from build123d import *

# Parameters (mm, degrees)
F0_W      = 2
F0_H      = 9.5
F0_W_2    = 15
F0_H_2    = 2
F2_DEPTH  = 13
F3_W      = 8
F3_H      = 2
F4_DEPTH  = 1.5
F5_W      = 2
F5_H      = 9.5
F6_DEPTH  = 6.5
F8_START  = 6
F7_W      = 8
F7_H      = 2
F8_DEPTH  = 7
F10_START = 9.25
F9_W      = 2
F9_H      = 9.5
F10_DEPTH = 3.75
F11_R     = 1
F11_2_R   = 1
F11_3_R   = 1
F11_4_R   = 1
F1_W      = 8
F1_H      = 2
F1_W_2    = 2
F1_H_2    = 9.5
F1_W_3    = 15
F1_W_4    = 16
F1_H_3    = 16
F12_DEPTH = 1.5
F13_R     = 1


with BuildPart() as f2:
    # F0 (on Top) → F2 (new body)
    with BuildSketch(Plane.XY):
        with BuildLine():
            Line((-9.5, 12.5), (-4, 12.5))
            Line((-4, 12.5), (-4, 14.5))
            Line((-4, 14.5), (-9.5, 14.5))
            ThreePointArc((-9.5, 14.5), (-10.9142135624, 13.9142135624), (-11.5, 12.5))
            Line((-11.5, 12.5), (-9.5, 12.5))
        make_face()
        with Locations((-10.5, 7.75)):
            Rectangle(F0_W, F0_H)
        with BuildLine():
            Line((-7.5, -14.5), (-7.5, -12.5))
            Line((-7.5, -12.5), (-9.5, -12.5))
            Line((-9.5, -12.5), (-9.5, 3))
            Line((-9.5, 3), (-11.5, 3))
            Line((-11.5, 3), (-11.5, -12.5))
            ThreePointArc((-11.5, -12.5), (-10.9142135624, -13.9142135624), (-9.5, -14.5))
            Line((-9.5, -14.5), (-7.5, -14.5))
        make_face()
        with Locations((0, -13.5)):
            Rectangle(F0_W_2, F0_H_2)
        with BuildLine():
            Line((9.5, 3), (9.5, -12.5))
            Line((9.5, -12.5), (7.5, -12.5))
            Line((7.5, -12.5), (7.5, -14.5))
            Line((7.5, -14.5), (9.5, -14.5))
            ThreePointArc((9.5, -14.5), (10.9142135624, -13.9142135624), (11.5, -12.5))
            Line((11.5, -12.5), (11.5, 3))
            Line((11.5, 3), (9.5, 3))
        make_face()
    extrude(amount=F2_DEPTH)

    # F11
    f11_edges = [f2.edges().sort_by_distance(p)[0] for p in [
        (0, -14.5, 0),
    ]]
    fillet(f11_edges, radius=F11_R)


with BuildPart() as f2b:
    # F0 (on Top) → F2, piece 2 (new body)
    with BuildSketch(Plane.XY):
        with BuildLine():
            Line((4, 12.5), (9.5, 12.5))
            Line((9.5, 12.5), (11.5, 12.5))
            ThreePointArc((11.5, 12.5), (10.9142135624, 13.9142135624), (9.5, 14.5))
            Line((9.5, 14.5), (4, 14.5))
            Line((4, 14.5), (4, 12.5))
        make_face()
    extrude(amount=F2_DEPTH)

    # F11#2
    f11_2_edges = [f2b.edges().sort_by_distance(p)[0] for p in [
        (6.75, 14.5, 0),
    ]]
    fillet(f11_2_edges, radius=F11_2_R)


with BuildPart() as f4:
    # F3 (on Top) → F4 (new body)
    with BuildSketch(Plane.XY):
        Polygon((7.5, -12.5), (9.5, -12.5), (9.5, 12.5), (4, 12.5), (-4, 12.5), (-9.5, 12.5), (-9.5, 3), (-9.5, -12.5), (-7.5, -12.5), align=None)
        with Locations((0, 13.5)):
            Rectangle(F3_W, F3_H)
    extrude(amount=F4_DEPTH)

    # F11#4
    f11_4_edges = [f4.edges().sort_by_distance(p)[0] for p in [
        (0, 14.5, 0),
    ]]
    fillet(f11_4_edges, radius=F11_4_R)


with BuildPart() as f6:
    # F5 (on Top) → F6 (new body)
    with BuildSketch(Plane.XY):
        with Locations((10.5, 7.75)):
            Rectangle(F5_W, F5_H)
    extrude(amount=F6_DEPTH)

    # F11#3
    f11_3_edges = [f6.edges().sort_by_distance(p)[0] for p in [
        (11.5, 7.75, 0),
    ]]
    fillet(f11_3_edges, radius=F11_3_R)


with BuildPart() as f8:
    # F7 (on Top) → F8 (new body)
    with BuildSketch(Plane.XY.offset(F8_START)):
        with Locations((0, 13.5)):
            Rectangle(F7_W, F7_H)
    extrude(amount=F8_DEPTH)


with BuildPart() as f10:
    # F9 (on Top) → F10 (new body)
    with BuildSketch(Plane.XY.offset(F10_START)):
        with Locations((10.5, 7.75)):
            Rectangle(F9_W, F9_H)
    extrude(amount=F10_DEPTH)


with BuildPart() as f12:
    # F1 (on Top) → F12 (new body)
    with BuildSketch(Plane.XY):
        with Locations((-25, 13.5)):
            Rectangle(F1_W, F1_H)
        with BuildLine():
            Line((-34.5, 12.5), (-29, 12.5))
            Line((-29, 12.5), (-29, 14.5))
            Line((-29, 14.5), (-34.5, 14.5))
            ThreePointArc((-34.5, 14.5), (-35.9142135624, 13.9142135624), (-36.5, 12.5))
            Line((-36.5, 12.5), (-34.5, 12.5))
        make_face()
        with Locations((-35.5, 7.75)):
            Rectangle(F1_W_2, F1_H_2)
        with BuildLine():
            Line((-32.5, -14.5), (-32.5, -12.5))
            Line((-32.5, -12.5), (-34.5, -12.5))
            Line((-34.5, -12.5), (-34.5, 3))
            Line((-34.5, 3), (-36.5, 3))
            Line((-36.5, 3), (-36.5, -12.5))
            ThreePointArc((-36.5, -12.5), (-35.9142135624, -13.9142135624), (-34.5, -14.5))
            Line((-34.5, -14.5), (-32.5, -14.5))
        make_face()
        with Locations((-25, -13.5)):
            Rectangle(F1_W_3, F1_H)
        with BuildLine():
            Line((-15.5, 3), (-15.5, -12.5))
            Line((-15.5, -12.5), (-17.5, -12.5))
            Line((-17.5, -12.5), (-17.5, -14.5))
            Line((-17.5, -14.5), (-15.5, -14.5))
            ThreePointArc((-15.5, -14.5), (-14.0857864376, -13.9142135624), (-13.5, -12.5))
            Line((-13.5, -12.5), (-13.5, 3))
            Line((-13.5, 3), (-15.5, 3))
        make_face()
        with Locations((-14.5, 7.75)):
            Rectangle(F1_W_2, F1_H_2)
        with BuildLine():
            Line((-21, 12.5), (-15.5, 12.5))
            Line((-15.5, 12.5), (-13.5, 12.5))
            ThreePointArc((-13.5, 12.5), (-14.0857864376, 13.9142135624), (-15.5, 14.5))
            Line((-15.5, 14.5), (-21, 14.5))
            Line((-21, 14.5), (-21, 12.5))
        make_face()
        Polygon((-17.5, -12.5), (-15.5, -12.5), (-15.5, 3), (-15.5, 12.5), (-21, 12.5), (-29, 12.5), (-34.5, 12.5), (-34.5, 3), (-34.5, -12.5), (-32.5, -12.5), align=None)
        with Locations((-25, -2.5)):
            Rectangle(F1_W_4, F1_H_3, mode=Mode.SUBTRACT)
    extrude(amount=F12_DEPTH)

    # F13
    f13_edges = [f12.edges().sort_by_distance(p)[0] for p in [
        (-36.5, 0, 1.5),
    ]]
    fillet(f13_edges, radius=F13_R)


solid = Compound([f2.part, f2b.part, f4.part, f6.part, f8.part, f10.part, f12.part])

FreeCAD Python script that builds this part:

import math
import FreeCAD as App
import Part
import Sketcher
Q = App.Units.Quantity


def edges_at(feature, points):
    """Names of the edges that pass closest to the given points."""
    edges = feature.Shape.Edges
    near = lambda p: min(range(len(edges)), key=lambda i: edges[i].distToShape(Part.Vertex(*p))[0])
    return sorted({f"Edge{near(p) + 1}" for p in points})


def add_polygon(sketch, points):
    """Adds a closed chain of lines whose ends are joined by coincident constraints."""
    first, n = sketch.GeometryCount, len(points)
    for a, b in zip(points, points[1:] + points[:1]):
        sketch.addGeometry(Part.LineSegment(App.Vector(*a, 0), App.Vector(*b, 0)), False)
    for i in range(n):
        sketch.addConstraint(Sketcher.Constraint("Coincident", first + i, 2, first + (i + 1) % n, 1))

doc = App.newDocument("Part")
body = doc.addObject("PartDesign::Body", "Body")

# Sketch on XY plane
sketch1 = body.newObject("Sketcher::SketchObject", "Sketch")
sketch1.AttachmentSupport = (doc.getObject("XY_Plane"), [""])
sketch1.MapMode = "FlatFace"
sketch1.addGeometry([
    Part.LineSegment(App.Vector(-4, 12.5, 0), App.Vector(-4, 14.5, 0)),  # 0
    Part.LineSegment(App.Vector(-4, 14.5, 0), App.Vector(-9.5, 14.5, 0)),  # 1
    Part.ArcOfCircle(Part.Circle(App.Vector(-9.5, 12.5, 0), App.Vector(0, 0, 1), 2), math.radians(90), math.radians(180)),  # 2
    Part.LineSegment(App.Vector(-11.5, 12.5, 0), App.Vector(-11.5, -12.5, 0)),  # 3
    Part.ArcOfCircle(Part.Circle(App.Vector(-9.5, -12.5, 0), App.Vector(0, 0, 1), 2), math.radians(180), math.radians(270)),  # 4
    Part.LineSegment(App.Vector(-9.5, -14.5, 0), App.Vector(9.5, -14.5, 0)),  # 5
    Part.ArcOfCircle(Part.Circle(App.Vector(9.5, -12.5, 0), App.Vector(0, 0, 1), 2), math.radians(-90), math.radians(0)),  # 6
    Part.LineSegment(App.Vector(11.5, -12.5, 0), App.Vector(11.5, 3, 0)),  # 7
    Part.LineSegment(App.Vector(11.5, 3, 0), App.Vector(9.5, 3, 0)),  # 8
    Part.LineSegment(App.Vector(9.5, 3, 0), App.Vector(9.5, -12.5, 0)),  # 9
    Part.LineSegment(App.Vector(9.5, -12.5, 0), App.Vector(-9.5, -12.5, 0)),  # 10
    Part.LineSegment(App.Vector(-9.5, -12.5, 0), App.Vector(-9.5, 12.5, 0)),  # 11
    Part.LineSegment(App.Vector(-9.5, 12.5, 0), App.Vector(-4, 12.5, 0)),  # 12
], False)
sketch1.addConstraint([
    Sketcher.Constraint("Coincident", 0, 2, 1, 1),
    Sketcher.Constraint("Tangent", 1, 2, 2, 1),
    Sketcher.Constraint("Tangent", 2, 2, 3, 1),
    Sketcher.Constraint("Tangent", 3, 2, 4, 1),
    Sketcher.Constraint("Tangent", 4, 2, 5, 1),
    Sketcher.Constraint("Tangent", 5, 2, 6, 1),
    Sketcher.Constraint("Tangent", 6, 2, 7, 1),
    Sketcher.Constraint("Coincident", 7, 2, 8, 1),
    Sketcher.Constraint("Coincident", 8, 2, 9, 1),
    Sketcher.Constraint("Coincident", 9, 2, 10, 1),
    Sketcher.Constraint("Coincident", 10, 2, 11, 1),
    Sketcher.Constraint("Coincident", 11, 2, 12, 1),
    Sketcher.Constraint("Coincident", 12, 2, 0, 1),
    Sketcher.Constraint("Vertical", 0),
    Sketcher.Constraint("Horizontal", 1),
    Sketcher.Constraint("Vertical", 3),
    Sketcher.Constraint("Horizontal", 5),
    Sketcher.Constraint("Vertical", 7),
    Sketcher.Constraint("Horizontal", 8),
    Sketcher.Constraint("Vertical", 9),
    Sketcher.Constraint("Horizontal", 10),
    Sketcher.Constraint("Vertical", 11),
    Sketcher.Constraint("Horizontal", 12),
    Sketcher.Constraint("Coincident", 9, 2, 6, 3),
    Sketcher.Constraint("Coincident", 10, 2, 4, 3),
    Sketcher.Constraint("Coincident", 11, 2, 2, 3),
    Sketcher.Constraint("Symmetric", 2, 3, 6, 3, -1, 1),
    Sketcher.Constraint("Radius", 2, Q("2 mm")),
    Sketcher.Constraint("DistanceX", 5, 1, 5, 2, Q("19 mm")),
    Sketcher.Constraint("DistanceY", 3, 2, 3, 1, Q("25 mm")),
    Sketcher.Constraint("DistanceX", 1, 2, 1, 1, Q("5.5 mm")),
    Sketcher.Constraint("DistanceY", 7, 1, 7, 2, Q("15.5 mm")),
])
pad1 = body.newObject("PartDesign::Pad", "Pad")
pad1.Profile = sketch1
pad1.Length = 13
doc.recompute()

fillet = body.newObject("PartDesign::Fillet", "Fillet")
fillet.Base = (pad1, edges_at(pad1, [(0, -14.5, 0)]))
fillet.Radius = 1
body2 = doc.addObject("PartDesign::Body", "Body001")

# Sketch on XY plane
sketch2 = body2.newObject("Sketcher::SketchObject", "Sketch001")
sketch2.AttachmentSupport = (doc.getObject("XY_Plane001"), [""])
sketch2.MapMode = "FlatFace"
sketch2.addGeometry([
    Part.LineSegment(App.Vector(4, 12.5, 0), App.Vector(11.5, 12.5, 0)),
    Part.ArcOfCircle(Part.Circle(App.Vector(9.5, 12.5, 0), App.Vector(0, 0, 1), 2), math.radians(0), math.radians(90)),
    Part.LineSegment(App.Vector(9.5, 14.5, 0), App.Vector(4, 14.5, 0)),
    Part.LineSegment(App.Vector(4, 14.5, 0), App.Vector(4, 12.5, 0)),
], False)
sketch2.addConstraint([
    Sketcher.Constraint("Coincident", 0, 2, 1, 1),
    Sketcher.Constraint("Tangent", 1, 2, 2, 1),
    Sketcher.Constraint("Coincident", 2, 2, 3, 1),
    Sketcher.Constraint("Coincident", 3, 2, 0, 1),
    Sketcher.Constraint("Horizontal", 0),
    Sketcher.Constraint("Horizontal", 2),
    Sketcher.Constraint("Vertical", 3),
    Sketcher.Constraint("Horizontal", 1, 3, 0, 2),
    Sketcher.Constraint("Radius", 1, Q("2 mm")),
    Sketcher.Constraint("DistanceX", 0, 1, 0, 2, Q("7.5 mm")),
    Sketcher.Constraint("DistanceX", -1, 1, 2, 2, Q("4 mm")),
    Sketcher.Constraint("DistanceY", -1, 1, 1, 3, Q("12.5 mm")),
])
pad2 = body2.newObject("PartDesign::Pad", "Pad001")
pad2.Profile = sketch2
pad2.Length = 13
doc.recompute()

fillet2 = body2.newObject("PartDesign::Fillet", "Fillet001")
fillet2.Base = (pad2, edges_at(pad2, [(6.75, 14.5, 0)]))
fillet2.Radius = 1
body3 = doc.addObject("PartDesign::Body", "Body002")

# Sketch on XY plane
sketch3 = body3.newObject("Sketcher::SketchObject", "Sketch002")
sketch3.AttachmentSupport = (doc.getObject("XY_Plane002"), [""])
sketch3.MapMode = "FlatFace"
add_polygon(sketch3, [(9.5, -12.5), (9.5, 12.5), (4, 12.5), (4, 14.5), (-4, 14.5), (-4, 12.5), (-9.5, 12.5), (-9.5, -12.5)])  # lines 0-7
sketch3.addConstraint([
    Sketcher.Constraint("Vertical", 0),
    Sketcher.Constraint("Horizontal", 1),
    Sketcher.Constraint("Vertical", 2),
    Sketcher.Constraint("Horizontal", 3),
    Sketcher.Constraint("Vertical", 4),
    Sketcher.Constraint("Horizontal", 5),
    Sketcher.Constraint("Vertical", 6),
    Sketcher.Constraint("Horizontal", 7),
    Sketcher.Constraint("Symmetric", 0, 2, 6, 2, -1, 1),
    Sketcher.Constraint("Symmetric", 1, 2, 4, 2, -2),
    Sketcher.Constraint("DistanceX", 3, 2, 3, 1, Q("8 mm")),
    Sketcher.Constraint("DistanceX", 7, 1, 7, 2, Q("19 mm")),
    Sketcher.Constraint("DistanceY", 0, 1, 0, 2, Q("25 mm")),
    Sketcher.Constraint("DistanceY", 2, 1, 2, 2, Q("2 mm")),
])
pad3 = body3.newObject("PartDesign::Pad", "Pad002")
pad3.Profile = sketch3
pad3.Length = 1.5
doc.recompute()

fillet3 = body3.newObject("PartDesign::Fillet", "Fillet002")
fillet3.Base = (pad3, edges_at(pad3, [(0, 14.5, 0)]))
fillet3.Radius = 1
body4 = doc.addObject("PartDesign::Body", "Body003")

# Sketch on XY plane
sketch4 = body4.newObject("Sketcher::SketchObject", "Sketch003")
sketch4.AttachmentSupport = (doc.getObject("XY_Plane003"), [""])
sketch4.MapMode = "FlatFace"
add_polygon(sketch4, [(9.5, 12.5), (9.5, 3), (11.5, 3), (11.5, 12.5)])  # lines 0-3
sketch4.addConstraint([
    Sketcher.Constraint("Vertical", 0),
    Sketcher.Constraint("Horizontal", 1),
    Sketcher.Constraint("Vertical", 2),
    Sketcher.Constraint("Horizontal", 3),
    Sketcher.Constraint("DistanceX", 1, 1, 1, 2, Q("2 mm")),
    Sketcher.Constraint("DistanceY", 0, 2, 0, 1, Q("9.5 mm")),
    Sketcher.Constraint("DistanceY", -1, 1, 0, 2, Q("3 mm")),
    Sketcher.Constraint("DistanceX", -1, 1, 0, 2, Q("9.5 mm")),
])
pad4 = body4.newObject("PartDesign::Pad", "Pad003")
pad4.Profile = sketch4
pad4.Length = 6.5
doc.recompute()

fillet4 = body4.newObject("PartDesign::Fillet", "Fillet003")
fillet4.Base = (pad4, edges_at(pad4, [(11.5, 7.75, 0)]))
fillet4.Radius = 1
body5 = doc.addObject("PartDesign::Body", "Body004")

# Sketch on XY plane
sketch5 = body5.newObject("Sketcher::SketchObject", "Sketch004")
sketch5.AttachmentSupport = (doc.getObject("XY_Plane004"), [""])
sketch5.MapMode = "FlatFace"
sketch5.AttachmentOffset = App.Placement(App.Vector(0, 0, 6), App.Rotation())
add_polygon(sketch5, [(-4, 14.5), (-4, 12.5), (4, 12.5), (4, 14.5)])  # lines 0-3
sketch5.addConstraint([
    Sketcher.Constraint("Vertical", 0),
    Sketcher.Constraint("Horizontal", 1),
    Sketcher.Constraint("Vertical", 2),
    Sketcher.Constraint("Horizontal", 3),
    Sketcher.Constraint("DistanceX", 1, 1, 1, 2, Q("8 mm")),
    Sketcher.Constraint("DistanceY", 0, 2, 0, 1, Q("2 mm")),
    Sketcher.Constraint("DistanceX", 0, 2, -1, 1, Q("4 mm")),
    Sketcher.Constraint("DistanceY", -1, 1, 0, 2, Q("12.5 mm")),
])
pad5 = body5.newObject("PartDesign::Pad", "Pad004")
pad5.Profile = sketch5
pad5.Length = 7
body6 = doc.addObject("PartDesign::Body", "Body005")

# Sketch on XY plane
sketch6 = body6.newObject("Sketcher::SketchObject", "Sketch005")
sketch6.AttachmentSupport = (doc.getObject("XY_Plane005"), [""])
sketch6.MapMode = "FlatFace"
sketch6.AttachmentOffset = App.Placement(App.Vector(0, 0, 9.25), App.Rotation())
add_polygon(sketch6, [(9.5, 12.5), (9.5, 3), (11.5, 3), (11.5, 12.5)])  # lines 0-3
sketch6.addConstraint([
    Sketcher.Constraint("Vertical", 0),
    Sketcher.Constraint("Horizontal", 1),
    Sketcher.Constraint("Vertical", 2),
    Sketcher.Constraint("Horizontal", 3),
    Sketcher.Constraint("DistanceX", 1, 1, 1, 2, Q("2 mm")),
    Sketcher.Constraint("DistanceY", 0, 2, 0, 1, Q("9.5 mm")),
    Sketcher.Constraint("DistanceY", -1, 1, 0, 2, Q("3 mm")),
    Sketcher.Constraint("DistanceX", -1, 1, 0, 2, Q("9.5 mm")),
])
pad6 = body6.newObject("PartDesign::Pad", "Pad005")
pad6.Profile = sketch6
pad6.Length = 3.75
body7 = doc.addObject("PartDesign::Body", "Body006")

# Sketch on XY plane
sketch7 = body7.newObject("Sketcher::SketchObject", "Sketch006")
sketch7.AttachmentSupport = (doc.getObject("XY_Plane006"), [""])
sketch7.MapMode = "FlatFace"
sketch7.addGeometry(Part.ArcOfCircle(Part.Circle(App.Vector(-34.5, 12.5, 0), App.Vector(0, 0, 1), 2), math.radians(90), math.radians(180)), False)  # 0
sketch7.addGeometry(Part.LineSegment(App.Vector(-36.5, 12.5, 0), App.Vector(-36.5, -12.5, 0)), False)  # 1
sketch7.addGeometry(Part.ArcOfCircle(Part.Circle(App.Vector(-34.5, -12.5, 0), App.Vector(0, 0, 1), 2), math.radians(180), math.radians(270)), False)  # 2
sketch7.addGeometry(Part.LineSegment(App.Vector(-34.5, -14.5, 0), App.Vector(-15.5, -14.5, 0)), False)  # 3
sketch7.addGeometry(Part.ArcOfCircle(Part.Circle(App.Vector(-15.5, -12.5, 0), App.Vector(0, 0, 1), 2), math.radians(-90), math.radians(0)), False)  # 4
sketch7.addGeometry(Part.LineSegment(App.Vector(-13.5, -12.5, 0), App.Vector(-13.5, 12.5, 0)), False)  # 5
sketch7.addGeometry(Part.ArcOfCircle(Part.Circle(App.Vector(-15.5, 12.5, 0), App.Vector(0, 0, 1), 2), math.radians(0), math.radians(90)), False)  # 6
sketch7.addGeometry(Part.LineSegment(App.Vector(-15.5, 14.5, 0), App.Vector(-34.5, 14.5, 0)), False)  # 7
add_polygon(sketch7, [(-17, -10.5), (-33, -10.5), (-33, 5.5), (-17, 5.5)])  # lines 8-11
sketch7.addConstraint([
    Sketcher.Constraint("Tangent", 0, 2, 1, 1),
    Sketcher.Constraint("Tangent", 1, 2, 2, 1),
    Sketcher.Constraint("Tangent", 2, 2, 3, 1),
    Sketcher.Constraint("Tangent", 3, 2, 4, 1),
    Sketcher.Constraint("Tangent", 4, 2, 5, 1),
    Sketcher.Constraint("Tangent", 5, 2, 6, 1),
    Sketcher.Constraint("Tangent", 6, 2, 7, 1),
    Sketcher.Constraint("Tangent", 7, 2, 0, 1),
    Sketcher.Constraint("Vertical", 1),
    Sketcher.Constraint("Horizontal", 3),
    Sketcher.Constraint("Vertical", 5),
    Sketcher.Constraint("Horizontal", 7),
    Sketcher.Constraint("Horizontal", 8),
    Sketcher.Constraint("Vertical", 9),
    Sketcher.Constraint("Horizontal", 10),
    Sketcher.Constraint("Vertical", 11),
    Sketcher.Constraint("Equal", 0, 2),
    Sketcher.Constraint("Equal", 2, 4),
    Sketcher.Constraint("Equal", 4, 6),
    Sketcher.Constraint("Equal", 10, 9),
    Sketcher.Constraint("Radius", 0, Q("2 mm")),
    Sketcher.Constraint("DistanceX", 3, 1, 3, 2, Q("19 mm")),
    Sketcher.Constraint("DistanceX", 8, 2, 8, 1, Q("16 mm")),
    Sketcher.Constraint("DistanceY", 1, 2, 1, 1, Q("25 mm")),
    Sketcher.Constraint("DistanceX", 8, 2, -1, 1, Q("33 mm")),
    Sketcher.Constraint("DistanceY", 2, 3, 8, 2, Q("2 mm")),
    Sketcher.Constraint("DistanceX", 0, 3, -1, 1, Q("34.5 mm")),
    Sketcher.Constraint("DistanceY", -1, 1, 0, 3, Q("12.5 mm")),
])
pad7 = body7.newObject("PartDesign::Pad", "Pad006")
pad7.Profile = sketch7
pad7.Length = 1.5
doc.recompute()

fillet5 = body7.newObject("PartDesign::Fillet", "Fillet004")
fillet5.Base = (pad7, edges_at(pad7, [(-36.5, 0, 1.5)]))
fillet5.Radius = 1

doc.recompute()
